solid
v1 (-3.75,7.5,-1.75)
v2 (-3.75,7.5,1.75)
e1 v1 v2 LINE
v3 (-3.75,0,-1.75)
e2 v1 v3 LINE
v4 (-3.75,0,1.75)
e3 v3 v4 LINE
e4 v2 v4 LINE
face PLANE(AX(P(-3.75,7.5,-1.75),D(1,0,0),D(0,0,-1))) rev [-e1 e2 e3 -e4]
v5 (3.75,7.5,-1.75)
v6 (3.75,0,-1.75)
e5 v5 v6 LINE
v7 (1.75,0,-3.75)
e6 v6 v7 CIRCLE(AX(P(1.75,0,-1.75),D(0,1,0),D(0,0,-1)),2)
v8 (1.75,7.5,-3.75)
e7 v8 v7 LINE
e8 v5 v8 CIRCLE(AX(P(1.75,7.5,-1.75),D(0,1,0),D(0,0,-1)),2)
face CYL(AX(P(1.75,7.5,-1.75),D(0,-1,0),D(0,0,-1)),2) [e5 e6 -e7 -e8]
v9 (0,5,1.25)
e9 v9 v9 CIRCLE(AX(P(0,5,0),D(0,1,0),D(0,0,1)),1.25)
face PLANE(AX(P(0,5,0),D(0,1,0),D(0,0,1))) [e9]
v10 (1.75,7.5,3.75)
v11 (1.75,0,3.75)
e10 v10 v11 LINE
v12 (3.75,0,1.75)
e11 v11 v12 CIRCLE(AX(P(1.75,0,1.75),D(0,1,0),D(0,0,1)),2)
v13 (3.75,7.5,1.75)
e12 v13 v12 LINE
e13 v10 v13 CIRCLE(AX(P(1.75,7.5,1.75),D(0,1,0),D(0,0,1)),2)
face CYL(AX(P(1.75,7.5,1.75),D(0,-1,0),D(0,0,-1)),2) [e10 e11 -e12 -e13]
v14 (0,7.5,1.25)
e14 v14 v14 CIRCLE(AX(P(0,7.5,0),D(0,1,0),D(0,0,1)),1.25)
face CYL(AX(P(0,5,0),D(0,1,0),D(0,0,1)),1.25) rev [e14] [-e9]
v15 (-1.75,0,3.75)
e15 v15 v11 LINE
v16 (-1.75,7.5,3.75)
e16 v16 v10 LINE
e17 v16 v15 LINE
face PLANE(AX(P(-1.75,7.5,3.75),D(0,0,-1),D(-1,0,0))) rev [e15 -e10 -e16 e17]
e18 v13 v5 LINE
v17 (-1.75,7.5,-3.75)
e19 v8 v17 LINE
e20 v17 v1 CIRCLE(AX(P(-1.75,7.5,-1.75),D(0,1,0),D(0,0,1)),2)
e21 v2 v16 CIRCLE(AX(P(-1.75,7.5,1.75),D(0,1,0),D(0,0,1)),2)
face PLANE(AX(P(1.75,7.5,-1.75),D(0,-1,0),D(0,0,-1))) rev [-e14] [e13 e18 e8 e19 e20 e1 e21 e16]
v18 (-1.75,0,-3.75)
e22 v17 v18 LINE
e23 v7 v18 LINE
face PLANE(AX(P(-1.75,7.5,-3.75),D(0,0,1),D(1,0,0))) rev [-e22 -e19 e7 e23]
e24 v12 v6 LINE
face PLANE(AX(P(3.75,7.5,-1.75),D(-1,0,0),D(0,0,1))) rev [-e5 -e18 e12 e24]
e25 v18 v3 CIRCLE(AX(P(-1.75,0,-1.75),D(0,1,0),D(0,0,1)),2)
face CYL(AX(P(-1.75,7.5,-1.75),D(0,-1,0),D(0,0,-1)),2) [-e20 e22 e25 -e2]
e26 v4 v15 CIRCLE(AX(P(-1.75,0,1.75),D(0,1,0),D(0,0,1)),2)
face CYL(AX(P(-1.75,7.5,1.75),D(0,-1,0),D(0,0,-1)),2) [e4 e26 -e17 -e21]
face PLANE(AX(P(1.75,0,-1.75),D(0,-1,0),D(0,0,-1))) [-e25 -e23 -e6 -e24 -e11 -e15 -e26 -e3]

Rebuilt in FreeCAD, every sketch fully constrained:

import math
import FreeCAD as App
import Part
import Sketcher
from FreeCAD import Vector
Q = App.Units.Quantity

doc = App.newDocument("Part")
body = doc.addObject("PartDesign::Body", "Body")

# Sketch on XZ plane
sketch1 = body.newObject("Sketcher::SketchObject", "Sketch")
sketch1.AttachmentSupport = (doc.getObject("XZ_Plane"), [""])
sketch1.MapMode = "FlatFace"
sketch1.addGeometry([
    Part.LineSegment(Vector(1.8, -3.8, 0), Vector(-1.8, -3.8, 0)),  # 0
    Part.ArcOfCircle(Part.Circle(Vector(-1.7, -1.7, 0), Vector(0, 0, 1), 2), math.radians(-180), math.radians(-90)),  # 1
    Part.LineSegment(Vector(-3.8, -1.8, 0), Vector(-3.8, 1.8, 0)),  # 2
    Part.ArcOfCircle(Part.Circle(Vector(-1.7, 1.7, 0), Vector(0, 0, 1), 2), math.radians(90), math.radians(180)),  # 3
    Part.LineSegment(Vector(-1.8, 3.8, 0), Vector(1.8, 3.8, 0)),  # 4
    Part.ArcOfCircle(Part.Circle(Vector(1.7, 1.7, 0), Vector(0, 0, 1), 2), math.radians(0), math.radians(90)),  # 5
    Part.LineSegment(Vector(3.8, 1.8, 0), Vector(3.8, -1.8, 0)),  # 6
    Part.ArcOfCircle(Part.Circle(Vector(1.7, -1.7, 0), Vector(0, 0, 1), 2), math.radians(-90), math.radians(0)),  # 7
], False)
sketch1.addConstraint([
    Sketcher.Constraint("Tangent", 0, 2, 1, 2),
    Sketcher.Constraint("Tangent", 1, 1, 2, 1),
    Sketcher.Constraint("Tangent", 2, 2, 3, 2),
    Sketcher.Constraint("Tangent", 3, 1, 4, 1),
    Sketcher.Constraint("Tangent", 4, 2, 5, 2),
    Sketcher.Constraint("Tangent", 5, 1, 6, 1),
    Sketcher.Constraint("Tangent", 6, 2, 7, 2),
    Sketcher.Constraint("Tangent", 7, 1, 0, 1),
    Sketcher.Constraint("Horizontal", 0),
    Sketcher.Constraint("Vertical", 2),
    Sketcher.Constraint("Horizontal", 4),
    Sketcher.Constraint("Vertical", 6),
    Sketcher.Constraint("Equal", 1, 3),
    Sketcher.Constraint("Equal", 3, 5),
    Sketcher.Constraint("Equal", 5, 7),
    Sketcher.Constraint("Symmetric", 1, 3, 5, 3, -1, 1),
    Sketcher.Constraint("Equal", 4, 2),
    Sketcher.Constraint("Radius", 1, Q("2 mm")),
    Sketcher.Constraint("DistanceX", 0, 2, 0, 1, Q("3.5 mm")),
])
pad1 = body.newObject("PartDesign::Pad", "Pad")
pad1.Profile = sketch1
pad1.Length = 7.5
pad1.Reversed = True

# Sketch on XZ plane
sketch2 = body.newObject("Sketcher::SketchObject", "Sketch001")
sketch2.AttachmentSupport = (doc.getObject("XZ_Plane"), [""])
sketch2.MapMode = "FlatFace"
sketch2.AttachmentOffset = App.Placement(Vector(0, 0, -7.5), App.Rotation())
sketch2.addGeometry(Part.Circle(Vector(0, 0, 0), Vector(0, 0, 1), 1.2), False)
sketch2.addConstraint([
    Sketcher.Constraint("Coincident", 0, 3, -1, 1),
    Sketcher.Constraint("Diameter", 0, Q("2.5 mm")),
])
pocket1 = body.newObject("PartDesign::Pocket", "Pocket")
pocket1.Profile = sketch2
pocket1.Length = 2.5
pocket1.Reversed = True

doc.recompute()
